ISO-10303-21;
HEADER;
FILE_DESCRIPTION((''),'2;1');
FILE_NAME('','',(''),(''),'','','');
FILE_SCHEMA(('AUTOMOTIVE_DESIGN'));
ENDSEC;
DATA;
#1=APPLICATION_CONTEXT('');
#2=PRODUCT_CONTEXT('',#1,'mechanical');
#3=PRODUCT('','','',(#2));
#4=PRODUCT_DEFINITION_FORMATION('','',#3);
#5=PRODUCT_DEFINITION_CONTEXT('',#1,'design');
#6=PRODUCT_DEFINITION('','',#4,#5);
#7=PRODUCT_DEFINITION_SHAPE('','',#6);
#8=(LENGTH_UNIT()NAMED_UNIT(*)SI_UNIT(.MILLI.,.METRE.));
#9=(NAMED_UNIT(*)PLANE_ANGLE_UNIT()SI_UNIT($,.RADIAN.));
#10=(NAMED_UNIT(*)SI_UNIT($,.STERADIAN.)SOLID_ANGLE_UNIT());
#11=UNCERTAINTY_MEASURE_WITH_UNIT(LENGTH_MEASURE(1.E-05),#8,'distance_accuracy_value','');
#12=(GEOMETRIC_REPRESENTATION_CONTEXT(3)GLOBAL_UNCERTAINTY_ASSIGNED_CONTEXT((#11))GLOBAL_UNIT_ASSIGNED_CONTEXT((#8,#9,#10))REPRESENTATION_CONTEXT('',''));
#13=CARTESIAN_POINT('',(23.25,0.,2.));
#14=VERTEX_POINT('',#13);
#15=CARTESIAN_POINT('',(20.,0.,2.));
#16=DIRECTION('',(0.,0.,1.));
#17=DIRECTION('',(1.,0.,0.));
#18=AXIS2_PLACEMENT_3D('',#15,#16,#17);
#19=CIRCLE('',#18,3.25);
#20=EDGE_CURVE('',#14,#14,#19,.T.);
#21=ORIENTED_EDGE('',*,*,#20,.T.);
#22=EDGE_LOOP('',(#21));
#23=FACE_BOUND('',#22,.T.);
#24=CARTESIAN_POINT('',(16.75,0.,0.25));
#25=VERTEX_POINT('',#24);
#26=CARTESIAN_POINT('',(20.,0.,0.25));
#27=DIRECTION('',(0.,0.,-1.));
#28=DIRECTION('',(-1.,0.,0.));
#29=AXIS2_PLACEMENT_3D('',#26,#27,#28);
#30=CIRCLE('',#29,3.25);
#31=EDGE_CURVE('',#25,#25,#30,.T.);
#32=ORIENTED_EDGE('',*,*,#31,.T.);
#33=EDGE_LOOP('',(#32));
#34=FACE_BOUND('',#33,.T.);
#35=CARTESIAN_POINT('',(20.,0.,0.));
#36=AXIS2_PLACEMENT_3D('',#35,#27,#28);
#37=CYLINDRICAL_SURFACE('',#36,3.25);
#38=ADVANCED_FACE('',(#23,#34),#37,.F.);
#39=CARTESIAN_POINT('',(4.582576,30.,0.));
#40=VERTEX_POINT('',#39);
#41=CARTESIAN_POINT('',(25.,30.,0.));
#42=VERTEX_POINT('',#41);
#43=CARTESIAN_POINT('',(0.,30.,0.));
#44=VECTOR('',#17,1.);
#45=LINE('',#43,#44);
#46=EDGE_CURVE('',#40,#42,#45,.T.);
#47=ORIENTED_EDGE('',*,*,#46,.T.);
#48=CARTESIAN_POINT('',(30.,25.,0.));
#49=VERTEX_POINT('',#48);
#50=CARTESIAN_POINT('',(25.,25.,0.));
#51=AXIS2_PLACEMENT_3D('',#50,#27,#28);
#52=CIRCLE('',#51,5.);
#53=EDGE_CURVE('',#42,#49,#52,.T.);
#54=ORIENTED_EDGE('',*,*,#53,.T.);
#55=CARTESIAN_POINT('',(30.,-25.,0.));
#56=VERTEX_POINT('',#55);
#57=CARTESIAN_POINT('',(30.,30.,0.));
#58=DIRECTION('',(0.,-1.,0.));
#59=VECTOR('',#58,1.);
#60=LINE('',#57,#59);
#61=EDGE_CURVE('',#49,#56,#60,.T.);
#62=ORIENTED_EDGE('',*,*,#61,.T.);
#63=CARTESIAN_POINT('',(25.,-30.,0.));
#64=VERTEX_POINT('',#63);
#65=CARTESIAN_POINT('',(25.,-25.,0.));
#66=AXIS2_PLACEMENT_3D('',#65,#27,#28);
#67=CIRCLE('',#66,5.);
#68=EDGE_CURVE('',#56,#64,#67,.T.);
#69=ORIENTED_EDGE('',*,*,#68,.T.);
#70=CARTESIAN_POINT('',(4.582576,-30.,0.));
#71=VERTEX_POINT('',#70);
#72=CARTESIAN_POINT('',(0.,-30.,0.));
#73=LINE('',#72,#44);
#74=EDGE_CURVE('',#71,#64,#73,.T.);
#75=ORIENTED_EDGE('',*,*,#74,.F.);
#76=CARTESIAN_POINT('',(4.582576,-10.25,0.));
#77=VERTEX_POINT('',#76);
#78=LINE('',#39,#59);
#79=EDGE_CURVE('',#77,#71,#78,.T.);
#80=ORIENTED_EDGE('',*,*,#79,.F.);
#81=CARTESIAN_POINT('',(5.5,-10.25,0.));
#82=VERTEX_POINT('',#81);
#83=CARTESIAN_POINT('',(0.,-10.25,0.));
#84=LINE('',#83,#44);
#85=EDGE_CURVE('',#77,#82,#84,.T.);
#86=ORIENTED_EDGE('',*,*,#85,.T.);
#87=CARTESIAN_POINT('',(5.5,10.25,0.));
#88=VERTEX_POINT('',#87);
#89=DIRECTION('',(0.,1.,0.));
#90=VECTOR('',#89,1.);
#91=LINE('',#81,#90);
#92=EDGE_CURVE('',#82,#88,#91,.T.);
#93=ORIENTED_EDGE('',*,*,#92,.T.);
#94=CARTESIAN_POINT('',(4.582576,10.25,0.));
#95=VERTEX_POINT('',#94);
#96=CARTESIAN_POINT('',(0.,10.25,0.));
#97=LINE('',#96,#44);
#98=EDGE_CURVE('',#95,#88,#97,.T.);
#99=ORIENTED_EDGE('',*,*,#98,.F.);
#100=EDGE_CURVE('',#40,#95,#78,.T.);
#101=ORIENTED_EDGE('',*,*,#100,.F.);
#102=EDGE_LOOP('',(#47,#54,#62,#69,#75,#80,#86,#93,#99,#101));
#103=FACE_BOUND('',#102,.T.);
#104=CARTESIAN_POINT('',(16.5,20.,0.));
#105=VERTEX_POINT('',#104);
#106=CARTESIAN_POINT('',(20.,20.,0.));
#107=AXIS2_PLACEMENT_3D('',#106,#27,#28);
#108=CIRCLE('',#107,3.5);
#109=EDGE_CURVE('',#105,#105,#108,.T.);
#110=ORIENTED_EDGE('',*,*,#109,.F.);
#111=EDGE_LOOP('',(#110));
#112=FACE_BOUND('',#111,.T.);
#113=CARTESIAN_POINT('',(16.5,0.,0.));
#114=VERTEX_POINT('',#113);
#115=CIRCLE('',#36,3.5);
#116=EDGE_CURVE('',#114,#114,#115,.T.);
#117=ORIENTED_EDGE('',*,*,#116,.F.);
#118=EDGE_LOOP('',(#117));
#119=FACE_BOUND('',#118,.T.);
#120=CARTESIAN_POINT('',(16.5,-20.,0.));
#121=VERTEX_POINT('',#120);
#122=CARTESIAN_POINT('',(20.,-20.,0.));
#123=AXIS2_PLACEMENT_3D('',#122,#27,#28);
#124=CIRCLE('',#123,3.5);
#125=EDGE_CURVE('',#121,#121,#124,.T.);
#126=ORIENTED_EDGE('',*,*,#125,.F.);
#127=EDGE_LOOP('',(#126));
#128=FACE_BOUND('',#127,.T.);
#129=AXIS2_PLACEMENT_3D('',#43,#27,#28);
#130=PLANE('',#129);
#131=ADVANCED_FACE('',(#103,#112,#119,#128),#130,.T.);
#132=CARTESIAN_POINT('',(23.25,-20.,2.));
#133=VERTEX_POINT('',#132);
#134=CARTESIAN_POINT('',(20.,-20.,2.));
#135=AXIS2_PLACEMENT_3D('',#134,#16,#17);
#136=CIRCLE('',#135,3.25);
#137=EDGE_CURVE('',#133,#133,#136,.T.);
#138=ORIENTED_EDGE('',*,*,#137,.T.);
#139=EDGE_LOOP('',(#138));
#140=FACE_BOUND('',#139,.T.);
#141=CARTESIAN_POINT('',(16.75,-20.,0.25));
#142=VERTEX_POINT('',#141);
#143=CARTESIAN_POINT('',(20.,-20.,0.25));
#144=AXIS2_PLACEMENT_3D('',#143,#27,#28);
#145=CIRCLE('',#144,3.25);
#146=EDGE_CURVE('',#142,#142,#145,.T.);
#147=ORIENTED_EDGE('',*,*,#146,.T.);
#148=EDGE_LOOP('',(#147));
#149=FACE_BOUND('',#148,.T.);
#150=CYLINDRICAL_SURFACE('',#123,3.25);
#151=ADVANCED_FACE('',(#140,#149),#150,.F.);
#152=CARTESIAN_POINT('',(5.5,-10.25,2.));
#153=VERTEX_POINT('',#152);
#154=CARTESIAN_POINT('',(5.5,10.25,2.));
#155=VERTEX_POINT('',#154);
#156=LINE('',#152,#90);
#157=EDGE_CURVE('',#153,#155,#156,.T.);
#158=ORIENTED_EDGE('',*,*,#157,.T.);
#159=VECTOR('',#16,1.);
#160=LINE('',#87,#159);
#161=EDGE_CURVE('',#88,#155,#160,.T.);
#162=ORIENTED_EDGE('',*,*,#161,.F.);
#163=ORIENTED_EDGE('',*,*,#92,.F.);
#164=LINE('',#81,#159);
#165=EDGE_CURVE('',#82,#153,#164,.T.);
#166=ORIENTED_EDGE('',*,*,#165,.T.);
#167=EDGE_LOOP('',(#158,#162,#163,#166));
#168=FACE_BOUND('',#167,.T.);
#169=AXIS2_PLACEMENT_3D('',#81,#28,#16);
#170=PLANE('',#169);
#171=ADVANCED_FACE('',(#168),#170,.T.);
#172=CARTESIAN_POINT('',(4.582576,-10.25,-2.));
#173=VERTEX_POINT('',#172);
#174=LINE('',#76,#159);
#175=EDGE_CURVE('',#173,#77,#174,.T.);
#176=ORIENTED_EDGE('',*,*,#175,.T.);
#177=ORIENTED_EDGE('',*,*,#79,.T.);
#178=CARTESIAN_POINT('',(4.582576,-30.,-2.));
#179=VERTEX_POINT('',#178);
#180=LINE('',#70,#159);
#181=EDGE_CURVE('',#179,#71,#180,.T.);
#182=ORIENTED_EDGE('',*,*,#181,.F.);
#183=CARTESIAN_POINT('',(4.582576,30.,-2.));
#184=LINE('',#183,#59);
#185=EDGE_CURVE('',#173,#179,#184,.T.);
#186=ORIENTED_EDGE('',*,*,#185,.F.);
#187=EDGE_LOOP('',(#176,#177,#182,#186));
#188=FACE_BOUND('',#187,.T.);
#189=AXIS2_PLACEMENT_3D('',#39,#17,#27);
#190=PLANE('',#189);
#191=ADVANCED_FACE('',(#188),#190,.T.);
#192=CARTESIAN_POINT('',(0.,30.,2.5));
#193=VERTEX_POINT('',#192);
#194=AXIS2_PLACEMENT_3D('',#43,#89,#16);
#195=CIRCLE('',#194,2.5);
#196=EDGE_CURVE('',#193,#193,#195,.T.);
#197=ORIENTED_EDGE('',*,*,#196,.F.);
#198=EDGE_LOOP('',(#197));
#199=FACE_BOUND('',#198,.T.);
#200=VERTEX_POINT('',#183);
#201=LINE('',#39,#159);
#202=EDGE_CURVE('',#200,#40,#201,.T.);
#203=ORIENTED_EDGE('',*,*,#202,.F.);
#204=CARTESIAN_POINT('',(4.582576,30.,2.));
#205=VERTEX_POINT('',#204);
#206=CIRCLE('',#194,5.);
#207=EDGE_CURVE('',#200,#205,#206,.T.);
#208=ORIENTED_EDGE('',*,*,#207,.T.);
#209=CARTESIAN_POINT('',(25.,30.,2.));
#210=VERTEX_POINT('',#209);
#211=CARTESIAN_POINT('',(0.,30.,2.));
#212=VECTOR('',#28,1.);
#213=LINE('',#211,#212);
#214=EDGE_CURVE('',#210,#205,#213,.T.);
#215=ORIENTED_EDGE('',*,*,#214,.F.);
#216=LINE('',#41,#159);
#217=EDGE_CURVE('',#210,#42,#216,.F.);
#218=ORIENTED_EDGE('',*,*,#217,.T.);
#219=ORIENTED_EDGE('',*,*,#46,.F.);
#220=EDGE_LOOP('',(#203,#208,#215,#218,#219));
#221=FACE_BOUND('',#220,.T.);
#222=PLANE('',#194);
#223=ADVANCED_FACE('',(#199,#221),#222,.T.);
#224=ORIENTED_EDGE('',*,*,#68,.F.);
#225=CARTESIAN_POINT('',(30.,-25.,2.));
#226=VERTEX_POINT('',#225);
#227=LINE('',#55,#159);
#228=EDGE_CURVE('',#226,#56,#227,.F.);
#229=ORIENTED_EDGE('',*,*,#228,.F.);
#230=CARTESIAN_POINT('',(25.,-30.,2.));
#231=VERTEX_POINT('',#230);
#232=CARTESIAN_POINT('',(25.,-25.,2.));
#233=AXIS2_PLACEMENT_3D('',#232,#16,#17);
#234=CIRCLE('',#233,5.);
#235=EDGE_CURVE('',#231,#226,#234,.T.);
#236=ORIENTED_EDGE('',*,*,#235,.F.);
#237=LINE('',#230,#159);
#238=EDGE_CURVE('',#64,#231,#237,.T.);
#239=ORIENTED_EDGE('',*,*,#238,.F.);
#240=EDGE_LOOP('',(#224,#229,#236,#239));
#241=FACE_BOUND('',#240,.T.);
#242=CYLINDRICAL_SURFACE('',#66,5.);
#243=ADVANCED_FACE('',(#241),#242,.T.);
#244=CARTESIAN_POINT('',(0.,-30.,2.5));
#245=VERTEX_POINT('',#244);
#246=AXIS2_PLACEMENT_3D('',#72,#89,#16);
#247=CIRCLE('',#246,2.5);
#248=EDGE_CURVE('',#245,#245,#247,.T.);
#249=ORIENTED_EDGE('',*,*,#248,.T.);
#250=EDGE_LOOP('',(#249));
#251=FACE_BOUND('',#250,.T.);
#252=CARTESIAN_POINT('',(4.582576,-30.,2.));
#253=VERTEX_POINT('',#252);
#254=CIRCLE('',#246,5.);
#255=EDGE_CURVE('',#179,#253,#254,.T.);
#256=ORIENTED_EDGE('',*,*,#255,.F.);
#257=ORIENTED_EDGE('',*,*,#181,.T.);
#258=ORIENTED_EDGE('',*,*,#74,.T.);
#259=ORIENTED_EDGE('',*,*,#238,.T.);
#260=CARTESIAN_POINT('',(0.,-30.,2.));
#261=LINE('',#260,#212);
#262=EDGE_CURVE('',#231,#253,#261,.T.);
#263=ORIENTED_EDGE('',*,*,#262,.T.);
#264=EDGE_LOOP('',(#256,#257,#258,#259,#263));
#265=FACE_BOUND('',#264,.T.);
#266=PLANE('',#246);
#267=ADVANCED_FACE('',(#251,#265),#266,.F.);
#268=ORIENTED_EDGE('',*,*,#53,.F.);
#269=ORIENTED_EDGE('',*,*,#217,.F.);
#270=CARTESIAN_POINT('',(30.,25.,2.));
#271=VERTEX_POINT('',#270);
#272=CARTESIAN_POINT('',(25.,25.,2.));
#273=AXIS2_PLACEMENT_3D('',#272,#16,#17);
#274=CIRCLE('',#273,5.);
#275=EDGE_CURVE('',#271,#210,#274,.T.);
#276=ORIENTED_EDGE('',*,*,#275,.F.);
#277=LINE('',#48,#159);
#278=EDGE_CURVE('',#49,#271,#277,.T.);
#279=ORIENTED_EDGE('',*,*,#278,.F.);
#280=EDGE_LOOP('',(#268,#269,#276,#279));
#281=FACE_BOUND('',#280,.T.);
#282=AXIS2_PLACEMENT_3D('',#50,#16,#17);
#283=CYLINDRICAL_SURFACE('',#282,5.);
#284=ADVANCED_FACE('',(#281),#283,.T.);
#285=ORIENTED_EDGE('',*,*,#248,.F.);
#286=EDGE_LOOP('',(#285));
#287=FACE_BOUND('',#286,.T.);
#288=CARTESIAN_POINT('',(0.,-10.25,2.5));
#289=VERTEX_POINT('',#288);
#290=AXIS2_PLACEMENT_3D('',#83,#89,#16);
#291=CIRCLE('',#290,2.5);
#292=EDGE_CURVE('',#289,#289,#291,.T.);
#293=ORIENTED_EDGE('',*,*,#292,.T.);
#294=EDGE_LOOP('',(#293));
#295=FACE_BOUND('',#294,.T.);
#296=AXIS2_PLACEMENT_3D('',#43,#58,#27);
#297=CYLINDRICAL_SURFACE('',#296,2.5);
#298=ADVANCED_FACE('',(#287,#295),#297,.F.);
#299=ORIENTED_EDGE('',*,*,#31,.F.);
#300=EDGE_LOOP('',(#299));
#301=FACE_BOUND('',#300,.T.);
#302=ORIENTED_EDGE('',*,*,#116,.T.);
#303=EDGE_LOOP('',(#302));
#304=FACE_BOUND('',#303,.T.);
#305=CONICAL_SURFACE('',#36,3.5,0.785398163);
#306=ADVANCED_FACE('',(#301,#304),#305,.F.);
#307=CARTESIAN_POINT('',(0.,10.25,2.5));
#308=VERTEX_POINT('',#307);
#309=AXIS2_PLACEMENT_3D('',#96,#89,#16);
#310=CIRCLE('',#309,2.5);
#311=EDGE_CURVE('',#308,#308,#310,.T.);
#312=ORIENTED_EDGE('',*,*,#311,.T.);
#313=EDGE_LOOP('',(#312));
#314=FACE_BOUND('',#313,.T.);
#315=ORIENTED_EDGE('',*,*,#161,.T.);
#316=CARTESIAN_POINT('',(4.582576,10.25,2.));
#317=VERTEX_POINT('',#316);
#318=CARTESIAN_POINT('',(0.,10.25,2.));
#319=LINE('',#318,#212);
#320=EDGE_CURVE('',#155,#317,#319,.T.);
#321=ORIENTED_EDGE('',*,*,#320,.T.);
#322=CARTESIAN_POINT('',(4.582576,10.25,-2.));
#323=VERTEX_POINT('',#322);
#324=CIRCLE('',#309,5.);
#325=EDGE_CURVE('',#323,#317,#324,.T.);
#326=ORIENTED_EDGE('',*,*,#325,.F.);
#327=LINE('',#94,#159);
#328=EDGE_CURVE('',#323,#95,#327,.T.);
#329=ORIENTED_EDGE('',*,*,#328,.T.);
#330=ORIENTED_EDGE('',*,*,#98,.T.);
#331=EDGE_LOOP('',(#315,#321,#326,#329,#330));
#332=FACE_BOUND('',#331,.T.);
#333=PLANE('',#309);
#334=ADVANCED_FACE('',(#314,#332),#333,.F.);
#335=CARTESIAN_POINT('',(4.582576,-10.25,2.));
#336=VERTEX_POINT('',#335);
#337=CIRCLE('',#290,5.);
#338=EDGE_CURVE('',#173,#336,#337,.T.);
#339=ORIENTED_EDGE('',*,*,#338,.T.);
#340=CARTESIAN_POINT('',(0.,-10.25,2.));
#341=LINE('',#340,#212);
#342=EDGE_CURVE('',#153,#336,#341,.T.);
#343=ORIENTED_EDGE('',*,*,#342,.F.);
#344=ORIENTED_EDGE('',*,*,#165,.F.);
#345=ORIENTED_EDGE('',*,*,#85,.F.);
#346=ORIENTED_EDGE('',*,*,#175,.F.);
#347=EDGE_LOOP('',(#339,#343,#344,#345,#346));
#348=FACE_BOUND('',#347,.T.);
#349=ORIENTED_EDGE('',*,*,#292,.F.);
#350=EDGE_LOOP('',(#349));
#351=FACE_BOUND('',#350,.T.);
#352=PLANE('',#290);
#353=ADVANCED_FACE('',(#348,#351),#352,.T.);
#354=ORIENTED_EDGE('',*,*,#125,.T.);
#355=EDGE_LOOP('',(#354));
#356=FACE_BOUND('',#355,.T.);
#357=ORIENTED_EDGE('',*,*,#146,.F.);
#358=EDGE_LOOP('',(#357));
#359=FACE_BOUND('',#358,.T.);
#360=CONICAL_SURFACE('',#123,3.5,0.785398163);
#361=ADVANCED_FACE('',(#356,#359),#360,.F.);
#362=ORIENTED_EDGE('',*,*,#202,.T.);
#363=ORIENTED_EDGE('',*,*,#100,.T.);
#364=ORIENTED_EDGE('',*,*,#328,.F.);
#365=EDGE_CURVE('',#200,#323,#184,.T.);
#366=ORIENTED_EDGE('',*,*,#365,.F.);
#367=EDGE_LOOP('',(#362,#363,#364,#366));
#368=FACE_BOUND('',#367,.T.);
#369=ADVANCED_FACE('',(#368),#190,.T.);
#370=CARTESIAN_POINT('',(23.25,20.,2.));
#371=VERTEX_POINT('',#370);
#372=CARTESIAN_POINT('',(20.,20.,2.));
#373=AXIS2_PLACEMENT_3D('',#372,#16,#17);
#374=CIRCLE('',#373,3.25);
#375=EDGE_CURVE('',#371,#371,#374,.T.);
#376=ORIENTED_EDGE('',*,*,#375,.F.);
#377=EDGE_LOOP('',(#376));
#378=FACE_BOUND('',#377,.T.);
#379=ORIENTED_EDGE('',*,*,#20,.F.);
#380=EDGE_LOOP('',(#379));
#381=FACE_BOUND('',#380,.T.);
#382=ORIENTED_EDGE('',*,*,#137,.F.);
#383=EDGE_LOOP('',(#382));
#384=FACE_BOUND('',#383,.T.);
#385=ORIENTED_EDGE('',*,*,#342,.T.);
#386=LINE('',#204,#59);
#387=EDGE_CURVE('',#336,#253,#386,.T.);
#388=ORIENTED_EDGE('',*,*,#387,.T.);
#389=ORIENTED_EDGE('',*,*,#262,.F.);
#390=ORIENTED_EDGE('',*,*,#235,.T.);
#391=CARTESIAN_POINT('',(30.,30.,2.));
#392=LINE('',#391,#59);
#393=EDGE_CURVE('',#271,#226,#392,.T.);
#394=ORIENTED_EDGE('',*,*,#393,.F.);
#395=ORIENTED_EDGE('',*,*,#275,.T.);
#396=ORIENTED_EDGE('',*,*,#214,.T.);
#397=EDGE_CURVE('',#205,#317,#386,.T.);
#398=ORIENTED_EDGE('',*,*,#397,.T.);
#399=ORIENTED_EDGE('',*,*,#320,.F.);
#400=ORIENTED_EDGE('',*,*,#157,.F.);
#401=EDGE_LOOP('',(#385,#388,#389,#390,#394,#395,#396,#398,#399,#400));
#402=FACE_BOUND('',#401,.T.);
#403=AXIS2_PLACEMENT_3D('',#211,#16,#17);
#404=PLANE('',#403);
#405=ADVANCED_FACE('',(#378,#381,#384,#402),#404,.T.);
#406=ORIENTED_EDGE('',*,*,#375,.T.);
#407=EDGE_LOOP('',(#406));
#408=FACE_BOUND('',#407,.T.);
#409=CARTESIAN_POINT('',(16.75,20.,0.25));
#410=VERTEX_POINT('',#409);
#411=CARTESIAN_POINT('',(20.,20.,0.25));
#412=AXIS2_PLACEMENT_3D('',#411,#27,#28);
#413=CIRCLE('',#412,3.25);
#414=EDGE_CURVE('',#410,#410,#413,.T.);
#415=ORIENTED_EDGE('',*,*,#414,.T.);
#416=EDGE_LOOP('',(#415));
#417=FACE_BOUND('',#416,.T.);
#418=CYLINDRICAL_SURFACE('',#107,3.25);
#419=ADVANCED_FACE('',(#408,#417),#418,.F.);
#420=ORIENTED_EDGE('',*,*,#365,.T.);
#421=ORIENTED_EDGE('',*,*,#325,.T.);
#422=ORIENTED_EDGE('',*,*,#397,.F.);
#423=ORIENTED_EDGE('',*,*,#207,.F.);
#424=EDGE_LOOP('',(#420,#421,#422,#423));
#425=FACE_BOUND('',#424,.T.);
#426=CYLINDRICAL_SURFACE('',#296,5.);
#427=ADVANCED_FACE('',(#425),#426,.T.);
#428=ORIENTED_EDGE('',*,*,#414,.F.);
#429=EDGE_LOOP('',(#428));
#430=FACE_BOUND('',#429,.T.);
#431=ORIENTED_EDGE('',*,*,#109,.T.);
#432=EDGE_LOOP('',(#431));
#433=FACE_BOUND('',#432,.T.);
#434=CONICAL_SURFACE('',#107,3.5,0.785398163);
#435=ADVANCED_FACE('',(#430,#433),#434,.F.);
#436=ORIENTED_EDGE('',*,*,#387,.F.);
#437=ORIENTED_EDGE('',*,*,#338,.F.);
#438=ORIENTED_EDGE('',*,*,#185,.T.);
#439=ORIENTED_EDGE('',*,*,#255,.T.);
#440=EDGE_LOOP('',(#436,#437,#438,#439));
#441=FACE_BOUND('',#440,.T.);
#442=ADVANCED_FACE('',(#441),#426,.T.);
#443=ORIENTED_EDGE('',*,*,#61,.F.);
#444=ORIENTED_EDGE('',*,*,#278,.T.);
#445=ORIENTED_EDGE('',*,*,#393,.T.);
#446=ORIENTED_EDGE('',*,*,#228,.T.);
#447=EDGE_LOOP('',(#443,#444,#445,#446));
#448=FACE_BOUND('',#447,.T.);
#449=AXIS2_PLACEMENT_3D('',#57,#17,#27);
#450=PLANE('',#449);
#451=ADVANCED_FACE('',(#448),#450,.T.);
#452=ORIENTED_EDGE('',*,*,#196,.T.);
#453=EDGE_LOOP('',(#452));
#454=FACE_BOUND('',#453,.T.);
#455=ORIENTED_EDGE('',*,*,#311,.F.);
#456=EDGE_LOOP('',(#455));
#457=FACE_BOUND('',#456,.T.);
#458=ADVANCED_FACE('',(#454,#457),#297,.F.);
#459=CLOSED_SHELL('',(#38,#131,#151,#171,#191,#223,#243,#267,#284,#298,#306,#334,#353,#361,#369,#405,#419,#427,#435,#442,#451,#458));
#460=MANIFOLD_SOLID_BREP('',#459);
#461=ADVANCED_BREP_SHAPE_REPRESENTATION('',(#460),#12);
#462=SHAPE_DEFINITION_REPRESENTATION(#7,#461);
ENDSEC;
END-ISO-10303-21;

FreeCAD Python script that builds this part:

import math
import FreeCAD as App
import Part
import Sketcher
from FreeCAD import Vector


def edges_at(feature, points):
    """Names of the edges that pass closest to the given points."""
    edges = feature.Shape.Edges
    near = lambda p: min(range(len(edges)), key=lambda i: edges[i].distToShape(Part.Vertex(*p))[0])
    return sorted({f"Edge{near(p) + 1}" for p in points})

doc = App.newDocument("Part")
body = doc.addObject("PartDesign::Body", "Body")

# Sketch on XZ plane
sketch1 = doc.addObject("Sketcher::SketchObject", "Sketch")
body.addObject(sketch1)
sketch1.AttachmentSupport = (doc.XZ_Plane, [""])
sketch1.MapMode = "FlatFace"
sketch1.addGeometry([
    Part.LineSegment(Vector(4.6, 0, 0), Vector(4.6, -2, 0)),  # 0
    Part.ArcOfCircle(Part.Circle(Vector(0, 0, 0), Vector(0, 0, 1), 5), math.radians(24), math.radians(336)),  # 1
    Part.LineSegment(Vector(4.6, 2, 0), Vector(30, 2, 0)),  # 2
    Part.LineSegment(Vector(30, 2, 0), Vector(30, 0, 0)),  # 3
    Part.LineSegment(Vector(30, 0, 0), Vector(4.6, 0, 0)),  # 4
    Part.Circle(Vector(0, 0, 0), Vector(0, 0, 1), 2.5),  # 5
], False)
sketch1.addConstraint([
    Sketcher.Constraint("Coincident", 0, 2, 1, 2),
    Sketcher.Constraint("Coincident", 1, 1, 2, 1),
    Sketcher.Constraint("Coincident", 2, 2, 3, 1),
    Sketcher.Constraint("Coincident", 3, 2, 4, 1),
    Sketcher.Constraint("Coincident", 4, 2, 0, 1),
    Sketcher.Constraint("Vertical", 0),
    Sketcher.Constraint("Horizontal", 2),
    Sketcher.Constraint("Vertical", 3),
    Sketcher.Constraint("Horizontal", 4),
    Sketcher.Constraint("Coincident", 1, 3, -1, 1),
    Sketcher.Constraint("Coincident", 5, 3, -1, 1),
    Sketcher.Constraint("PointOnObject", 3, 2, -1),
    Sketcher.Constraint("Vertical", 0, 2, 1, 1),
    Sketcher.Constraint("Diameter", 5, 5.0),
    Sketcher.Constraint("Radius", 1, 5.0),
    Sketcher.Constraint("DistanceY", 0, 2, 0, 1, 2.0),
    Sketcher.Constraint("DistanceX", -1, 1, 2, 2, 30.0),
])
pad1 = doc.addObject("PartDesign::Pad", "Pad")
body.addObject(pad1)
pad1.Profile = sketch1
pad1.Length = 60
pad1.Midplane = True

# Sketch on XZ plane
sketch2 = doc.addObject("Sketcher::SketchObject", "Sketch001")
body.addObject(sketch2)
sketch2.AttachmentSupport = (doc.XZ_Plane, [""])
sketch2.MapMode = "FlatFace"
sketch2.addGeometry([
    Part.LineSegment(Vector(4.6, 2, 0), Vector(5.5, 2, 0)),  # 0
    Part.LineSegment(Vector(5.5, 2, 0), Vector(5.5, 0, 0)),  # 1
    Part.LineSegment(Vector(5.5, 0, 0), Vector(4.6, 0, 0)),  # 2
    Part.LineSegment(Vector(4.6, 0, 0), Vector(4.6, -2, 0)),  # 3
    Part.ArcOfCircle(Part.Circle(Vector(0, 0, 0), Vector(0, 0, 1), 5), math.radians(24), math.radians(336)),  # 4
    Part.Circle(Vector(0, 0, 0), Vector(0, 0, 1), 2.5),  # 5
], False)
sketch2.addConstraint([
    Sketcher.Constraint("Coincident", 0, 2, 1, 1),
    Sketcher.Constraint("Coincident", 1, 2, 2, 1),
    Sketcher.Constraint("Coincident", 2, 2, 3, 1),
    Sketcher.Constraint("Coincident", 3, 2, 4, 2),
    Sketcher.Constraint("Coincident", 4, 1, 0, 1),
    Sketcher.Constraint("Horizontal", 0),
    Sketcher.Constraint("Vertical", 1),
    Sketcher.Constraint("Horizontal", 2),
    Sketcher.Constraint("Vertical", 3),
    Sketcher.Constraint("Coincident", 4, 3, -1, 1),
    Sketcher.Constraint("Coincident", 5, 3, -1, 1),
    Sketcher.Constraint("PointOnObject", 1, 2, -1),
    Sketcher.Constraint("Vertical", 3, 2, 4, 1),
    Sketcher.Constraint("Diameter", 5, 5.0),
    Sketcher.Constraint("Radius", 4, 5.0),
    Sketcher.Constraint("DistanceY", 1, 2, 1, 1, 2.0),
    Sketcher.Constraint("DistanceX", -1, 1, 0, 2, 5.5),
])
pocket1 = doc.addObject("PartDesign::Pocket", "Pocket")
body.addObject(pocket1)
pocket1.Profile = sketch2
pocket1.Length = 20.5
pocket1.Midplane = True

# Sketch on XY plane
sketch3 = doc.addObject("Sketcher::SketchObject", "Sketch002")
body.addObject(sketch3)
sketch3.AttachmentSupport = (doc.XY_Plane, [""])
sketch3.MapMode = "FlatFace"
sketch3.addGeometry([
    Part.Circle(Vector(20, -20, 0), Vector(0, 0, 1), 3.2),
    Part.Circle(Vector(20, 0, 0), Vector(0, 0, 1), 3.2),
    Part.Circle(Vector(20, 20, 0), Vector(0, 0, 1), 3.2),
], False)
sketch3.addConstraint([
    Sketcher.Constraint("Equal", 0, 1),
    Sketcher.Constraint("Equal", 1, 2),
    Sketcher.Constraint("Symmetric", 0, 3, 2, 3, -1),
    Sketcher.Constraint("PointOnObject", 1, 3, -1),
    Sketcher.Constraint("Vertical", 0, 3, 1, 3),
    Sketcher.Constraint("Diameter", 0, 6.5),
    Sketcher.Constraint("DistanceX", -1, 1, 0, 3, 20.0),
    Sketcher.Constraint("DistanceY", 0, 3, -1, 1, 20.0),
])
doc.recompute()
hole = doc.addObject("PartDesign::Hole", "Hole")
body.addObject(hole)
hole.Profile = sketch3
hole.ThreadType = "None"
hole.Diameter = 6.5
hole.DepthType = "ThroughAll"
hole.HoleCutType = "Countersink"
hole.HoleCutDiameter = 7
hole.HoleCutCountersinkAngle = 90
hole.Reversed = True
doc.recompute()

fillet = doc.addObject("PartDesign::Fillet", "Fillet")
body.addObject(fillet)
fillet.Base = (hole, edges_at(hole, [(30, 30, 1), (30, -30, 1)]))
fillet.Radius = 5

doc.recompute()
